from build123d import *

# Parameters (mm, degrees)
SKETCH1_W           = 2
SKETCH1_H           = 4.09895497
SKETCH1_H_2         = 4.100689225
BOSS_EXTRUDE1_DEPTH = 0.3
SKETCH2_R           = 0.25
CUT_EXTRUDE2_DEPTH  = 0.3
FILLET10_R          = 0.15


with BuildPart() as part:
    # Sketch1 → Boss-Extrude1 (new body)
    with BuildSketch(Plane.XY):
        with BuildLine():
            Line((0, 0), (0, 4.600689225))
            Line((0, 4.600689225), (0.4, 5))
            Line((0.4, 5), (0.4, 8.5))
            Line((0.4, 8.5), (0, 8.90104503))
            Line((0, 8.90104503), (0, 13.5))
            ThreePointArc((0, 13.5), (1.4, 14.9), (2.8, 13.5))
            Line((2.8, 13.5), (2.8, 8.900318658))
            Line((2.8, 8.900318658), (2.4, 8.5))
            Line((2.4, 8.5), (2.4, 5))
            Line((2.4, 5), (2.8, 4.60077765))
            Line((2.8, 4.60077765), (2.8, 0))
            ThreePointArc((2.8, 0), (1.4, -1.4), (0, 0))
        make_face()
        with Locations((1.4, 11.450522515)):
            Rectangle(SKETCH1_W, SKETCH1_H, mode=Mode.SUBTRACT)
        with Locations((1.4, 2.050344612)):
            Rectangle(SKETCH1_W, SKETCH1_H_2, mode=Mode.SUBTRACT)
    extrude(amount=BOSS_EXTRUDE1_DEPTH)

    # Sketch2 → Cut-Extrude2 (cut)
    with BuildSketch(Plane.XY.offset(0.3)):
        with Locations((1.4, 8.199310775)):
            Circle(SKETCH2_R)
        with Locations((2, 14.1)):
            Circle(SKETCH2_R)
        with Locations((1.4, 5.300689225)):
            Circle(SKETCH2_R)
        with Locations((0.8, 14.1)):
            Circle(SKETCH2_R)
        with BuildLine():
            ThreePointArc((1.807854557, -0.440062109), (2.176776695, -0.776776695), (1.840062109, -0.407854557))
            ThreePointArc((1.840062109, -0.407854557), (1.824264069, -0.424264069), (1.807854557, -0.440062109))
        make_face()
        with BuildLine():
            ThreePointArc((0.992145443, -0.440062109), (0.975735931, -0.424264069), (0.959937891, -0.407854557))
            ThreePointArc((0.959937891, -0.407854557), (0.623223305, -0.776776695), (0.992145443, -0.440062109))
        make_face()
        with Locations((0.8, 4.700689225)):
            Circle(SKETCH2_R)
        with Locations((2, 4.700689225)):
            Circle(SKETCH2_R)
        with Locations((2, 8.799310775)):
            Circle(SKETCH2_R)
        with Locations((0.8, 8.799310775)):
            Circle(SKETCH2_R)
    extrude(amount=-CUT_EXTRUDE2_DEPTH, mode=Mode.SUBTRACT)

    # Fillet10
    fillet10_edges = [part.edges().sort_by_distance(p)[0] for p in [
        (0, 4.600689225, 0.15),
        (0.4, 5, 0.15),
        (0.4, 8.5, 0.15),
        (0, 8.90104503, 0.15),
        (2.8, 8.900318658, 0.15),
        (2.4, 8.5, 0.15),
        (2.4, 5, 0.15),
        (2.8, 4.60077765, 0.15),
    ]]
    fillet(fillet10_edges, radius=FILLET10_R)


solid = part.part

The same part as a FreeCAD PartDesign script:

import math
import FreeCAD as App
import Part
import Sketcher


def edges_at(feature, points):
    """Names of the edges that pass closest to the given points."""
    edges = feature.Shape.Edges
    near = lambda p: min(range(len(edges)), key=lambda i: edges[i].distToShape(Part.Vertex(*p))[0])
    return sorted({f"Edge{near(p) + 1}" for p in points})


def add_polygon(sketch, points):
    """Adds a closed chain of lines whose ends are joined by coincident constraints."""
    first, n = sketch.GeometryCount, len(points)
    for a, b in zip(points, points[1:] + points[:1]):
        sketch.addGeometry(Part.LineSegment(App.Vector(*a, 0), App.Vector(*b, 0)), False)
    for i in range(n):
        sketch.addConstraint(Sketcher.Constraint("Coincident", first + i, 2, first + (i + 1) % n, 1))

doc = App.newDocument("Part")
body = doc.addObject("PartDesign::Body", "Body")

# Sketch on XY plane
sketch1 = body.newObject("Sketcher::SketchObject", "Sketch")
sketch1.AttachmentSupport = (doc.getObject("XY_Plane"), [""])
sketch1.MapMode = "FlatFace"
sketch1.addGeometry(Part.LineSegment(App.Vector(0, 4.6, 0), App.Vector(0, 0, 0)), False)  # 0
sketch1.addGeometry(Part.ArcOfCircle(Part.Circle(App.Vector(1.4, 0, 0), App.Vector(0, 0, 1), 1.4), math.radians(180), math.radians(360)), False)  # 1
sketch1.addGeometry(Part.LineSegment(App.Vector(2.8, 0, 0), App.Vector(2.8, 4.6, 0)), False)  # 2
sketch1.addGeometry(Part.LineSegment(App.Vector(2.8, 4.6, 0), App.Vector(2.4, 5, 0)), False)  # 3
sketch1.addGeometry(Part.LineSegment(App.Vector(2.4, 5, 0), App.Vector(2.4, 8.5, 0)), False)  # 4
sketch1.addGeometry(Part.LineSegment(App.Vector(2.4, 8.5, 0), App.Vector(2.8, 8.9, 0)), False)  # 5
sketch1.addGeometry(Part.LineSegment(App.Vector(2.8, 8.9, 0), App.Vector(2.8, 13.5, 0)), False)  # 6
sketch1.addGeometry(Part.ArcOfCircle(Part.Circle(App.Vector(1.4, 13.5, 0), App.Vector(0, 0, 1), 1.4), math.radians(0), math.radians(180)), False)  # 7
sketch1.addGeometry(Part.LineSegment(App.Vector(0, 13.5, 0), App.Vector(0, 8.9, 0)), False)  # 8
sketch1.addGeometry(Part.LineSegment(App.Vector(0, 8.9, 0), App.Vector(0.4, 8.5, 0)), False)  # 9
sketch1.addGeometry(Part.LineSegment(App.Vector(0.4, 8.5, 0), App.Vector(0.4, 5, 0)), False)  # 10
sketch1.addGeometry(Part.LineSegment(App.Vector(0.4, 5, 0), App.Vector(0, 4.6, 0)), False)  # 11
add_polygon(sketch1, [(0.4, 0), (0.4, 4.1), (2.4, 4.1), (2.4, 0)])  # lines 12-15
add_polygon(sketch1, [(0.4, 9.4), (0.4, 13.5), (2.4, 13.5), (2.4, 9.4)])  # lines 16-19
sketch1.addConstraint(Sketcher.Constraint("Tangent", 0, 2, 1, 1))
sketch1.addConstraint(Sketcher.Constraint("Tangent", 1, 2, 2, 1))
sketch1.addConstraint(Sketcher.Constraint("Coincident", 2, 2, 3, 1))
sketch1.addConstraint(Sketcher.Constraint("Coincident", 3, 2, 4, 1))
sketch1.addConstraint(Sketcher.Constraint("Coincident", 4, 2, 5, 1))
sketch1.addConstraint(Sketcher.Constraint("Coincident", 5, 2, 6, 1))
sketch1.addConstraint(Sketcher.Constraint("Tangent", 6, 2, 7, 1))
sketch1.addConstraint(Sketcher.Constraint("Tangent", 7, 2, 8, 1))
sketch1.addConstraint(Sketcher.Constraint("Coincident", 8, 2, 9, 1))
sketch1.addConstraint(Sketcher.Constraint("Coincident", 9, 2, 10, 1))
sketch1.addConstraint(Sketcher.Constraint("Coincident", 10, 2, 11, 1))
sketch1.addConstraint(Sketcher.Constraint("Coincident", 11, 2, 0, 1))
sketch1.addConstraint(Sketcher.Constraint("Vertical", 0))
sketch1.addConstraint(Sketcher.Constraint("Vertical", 2))
sketch1.addConstraint(Sketcher.Constraint("Vertical", 4))
sketch1.addConstraint(Sketcher.Constraint("Vertical", 6))
sketch1.addConstraint(Sketcher.Constraint("Vertical", 8))
sketch1.addConstraint(Sketcher.Constraint("Vertical", 10))
sketch1.addConstraint(Sketcher.Constraint("Vertical", 12))
sketch1.addConstraint(Sketcher.Constraint("Horizontal", 13))
sketch1.addConstraint(Sketcher.Constraint("Vertical", 14))
sketch1.addConstraint(Sketcher.Constraint("Horizontal", 15))
sketch1.addConstraint(Sketcher.Constraint("Vertical", 16))
sketch1.addConstraint(Sketcher.Constraint("Horizontal", 17))
sketch1.addConstraint(Sketcher.Constraint("Vertical", 18))
sketch1.addConstraint(Sketcher.Constraint("Horizontal", 19))
sketch1.addConstraint(Sketcher.Constraint("Coincident", 0, 2, -1, 1))
sketch1.addConstraint(Sketcher.Constraint("Equal", 1, 7))
sketch1.addConstraint(Sketcher.Constraint("PointOnObject", 7, 2, -2))
sketch1.addConstraint(Sketcher.Constraint("PointOnObject", 14, 2, -1))
sketch1.addConstraint(Sketcher.Constraint("Horizontal", 4, 2, 9, 2))
sketch1.addConstraint(Sketcher.Constraint("Horizontal", 3, 2, 10, 2))
sketch1.addConstraint(Sketcher.Constraint("Horizontal", 7, 2, 16, 2))
sketch1.addConstraint(Sketcher.Constraint("Vertical", 10, 2, 12, 2))
sketch1.addConstraint(Sketcher.Constraint("Vertical", 4, 2, 13, 2))
sketch1.addConstraint(Sketcher.Constraint("Vertical", 15, 2, 16, 2))
sketch1.addConstraint(Sketcher.Constraint("Vertical", 14, 2, 17, 2))
sketch1.addConstraint(Sketcher.Constraint("Radius", 1, 1.4))
sketch1.addConstraint(Sketcher.Constraint("DistanceX", 13, 1, 13, 2, 2.0))
sketch1.addConstraint(Sketcher.Constraint("DistanceY", 4, 1, 4, 2, 3.5))
sketch1.addConstraint(Sketcher.Constraint("DistanceY", -1, 1, 3, 2, 5.0))
sketch1.addConstraint(Sketcher.Constraint("DistanceX", 1, 3, 3, 2, 1.0))
sketch1.addConstraint(Sketcher.Constraint("DistanceY", 4, 2, 7, 3, 5.0))
sketch1.addConstraint(Sketcher.Constraint("DistanceY", 12, 2, 11, 2, 0.5))
sketch1.addConstraint(Sketcher.Constraint("DistanceY", 8, 2, 18, 2, 0.5))
sketch1.addConstraint(Sketcher.Constraint("Distance", 11, 0.565198))
sketch1.addConstraint(Sketcher.Constraint("DistanceY", 6, 1, 6, 2, 4.599681))
sketch1.addConstraint(Sketcher.Constraint("DistanceY", 2, 1, 2, 2, 4.600778))
sketch1.addConstraint(Sketcher.Constraint("DistanceY", 8, 2, 8, 1, 4.598955))
pad1 = body.newObject("PartDesign::Pad", "Pad")
pad1.Profile = sketch1
pad1.Length = 0.3

# Sketch on XY plane
sketch2 = body.newObject("Sketcher::SketchObject", "Sketch001")
sketch2.AttachmentSupport = (doc.getObject("XY_Plane"), [""])
sketch2.MapMode = "FlatFace"
sketch2.AttachmentOffset = App.Placement(App.Vector(0, 0, 0.3), App.Rotation())
sketch2.addGeometry(Part.Circle(App.Vector(1.4, 8.199, 0), App.Vector(0, 0, 1), 0.25), False)
sketch2.addGeometry(Part.Circle(App.Vector(2, 14.1, 0), App.Vector(0, 0, 1), 0.25), False)
sketch2.addGeometry(Part.Circle(App.Vector(1.4, 5.301, 0), App.Vector(0, 0, 1), 0.25), False)
sketch2.addGeometry(Part.Circle(App.Vector(0.8, 14.1, 0), App.Vector(0, 0, 1), 0.25), False)
sketch2.addGeometry(Part.ArcOfCircle(Part.Circle(App.Vector(2, -0.6, 0), App.Vector(0, 0, 1), 0.25), math.radians(140), math.radians(490)), False)
sketch2.addGeometry(Part.ArcOfCircle(Part.Circle(App.Vector(1.4, 0, 0), App.Vector(0, 0, 1), 0.6), math.radians(-47.18), math.radians(-42.82)), False)
sketch2.addGeometry(Part.ArcOfCircle(Part.Circle(App.Vector(1.4, 0, 0), App.Vector(0, 0, 1), 0.6), math.radians(-137.18), math.radians(-132.82)), False)
sketch2.addGeometry(Part.ArcOfCircle(Part.Circle(App.Vector(0.8, -0.6, 0), App.Vector(0, 0, 1), 0.25), math.radians(50), math.radians(400)), False)
sketch2.addGeometry(Part.Circle(App.Vector(0.8, 4.701, 0), App.Vector(0, 0, 1), 0.25), False)
sketch2.addGeometry(Part.Circle(App.Vector(2, 4.701, 0), App.Vector(0, 0, 1), 0.25), False)
sketch2.addGeometry(Part.Circle(App.Vector(2, 8.799, 0), App.Vector(0, 0, 1), 0.25), False)
sketch2.addGeometry(Part.Circle(App.Vector(0.8, 8.799, 0), App.Vector(0, 0, 1), 0.25), False)
sketch2.addConstraint(Sketcher.Constraint("Coincident", 4, 1, 5, 1))
sketch2.addConstraint(Sketcher.Constraint("Coincident", 5, 2, 4, 2))
sketch2.addConstraint(Sketcher.Constraint("Coincident", 6, 1, 7, 1))
sketch2.addConstraint(Sketcher.Constraint("Coincident", 7, 2, 6, 2))
sketch2.addConstraint(Sketcher.Constraint("Coincident", 6, 3, 5, 3))
sketch2.addConstraint(Sketcher.Constraint("Equal", 0, 1))
sketch2.addConstraint(Sketcher.Constraint("Equal", 1, 2))
sketch2.addConstraint(Sketcher.Constraint("Equal", 2, 3))
sketch2.addConstraint(Sketcher.Constraint("Equal", 3, 4))
sketch2.addConstraint(Sketcher.Constraint("Equal", 5, 6))
sketch2.addConstraint(Sketcher.Constraint("Equal", 4, 7))
sketch2.addConstraint(Sketcher.Constraint("Equal", 7, 8))
sketch2.addConstraint(Sketcher.Constraint("Equal", 8, 9))
sketch2.addConstraint(Sketcher.Constraint("Equal", 9, 10))
sketch2.addConstraint(Sketcher.Constraint("Equal", 10, 11))
sketch2.addConstraint(Sketcher.Constraint("PointOnObject", 5, 3, -1))
sketch2.addConstraint(Sketcher.Constraint("Horizontal", 1, 3, 3, 3))
sketch2.addConstraint(Sketcher.Constraint("Horizontal", 4, 3, 7, 3))
sketch2.addConstraint(Sketcher.Constraint("Horizontal", 8, 3, 9, 3))
sketch2.addConstraint(Sketcher.Constraint("Horizontal", 10, 3, 11, 3))
sketch2.addConstraint(Sketcher.Constraint("Horizontal", 5, 2, 6, 1))
sketch2.addConstraint(Sketcher.Constraint("Vertical", 0, 3, 2, 3))
sketch2.addConstraint(Sketcher.Constraint("Vertical", 1, 3, 4, 3))
sketch2.addConstraint(Sketcher.Constraint("Vertical", 2, 3, 5, 3))
sketch2.addConstraint(Sketcher.Constraint("Vertical", 3, 3, 7, 3))
sketch2.addConstraint(Sketcher.Constraint("Vertical", 7, 3, 8, 3))
sketch2.addConstraint(Sketcher.Constraint("Vertical", 4, 3, 9, 3))
sketch2.addConstraint(Sketcher.Constraint("Vertical", 9, 3, 10, 3))
sketch2.addConstraint(Sketcher.Constraint("Vertical", 8, 3, 11, 3))
sketch2.addConstraint(Sketcher.Constraint("Diameter", 0, 0.5))
sketch2.addConstraint(Sketcher.Constraint("Radius", 5, 0.599999))
sketch2.addConstraint(Sketcher.Constraint("DistanceX", -1, 1, 1, 3, 2.0))
sketch2.addConstraint(Sketcher.Constraint("DistanceX", -1, 1, 0, 3, 1.4))
sketch2.addConstraint(Sketcher.Constraint("DistanceY", -1, 1, 1, 3, 14.1))
sketch2.addConstraint(Sketcher.Constraint("DistanceY", 4, 3, -1, 1, 0.6))
sketch2.addConstraint(Sketcher.Constraint("DistanceY", 8, 3, 2, 3, 0.6))
sketch2.addConstraint(Sketcher.Constraint("DistanceY", 0, 3, 10, 3, 0.6))
sketch2.addConstraint(Sketcher.Constraint("DistanceY", -1, 1, 0, 3, 8.199311))
sketch2.addConstraint(Sketcher.Constraint("DistanceY", -1, 1, 2, 3, 5.300689))
pocket1 = body.newObject("PartDesign::Pocket", "Pocket")
pocket1.Profile = sketch2
pocket1.Length = 0.3
doc.recompute()

fillet = body.newObject("PartDesign::Fillet", "Fillet")
fillet.Base = (pocket1, edges_at(pocket1, [
    (0, 4.601, 0.15),
    (0.4, 5, 0.15),
    (0.4, 8.5, 0.15),
    (0, 8.901, 0.15),
    (2.8, 8.9, 0.15),
    (2.4, 8.5, 0.15),
    (2.4, 5, 0.15),
    (2.8, 4.601, 0.15),
]))
fillet.Radius = 0.15

doc.recompute()
